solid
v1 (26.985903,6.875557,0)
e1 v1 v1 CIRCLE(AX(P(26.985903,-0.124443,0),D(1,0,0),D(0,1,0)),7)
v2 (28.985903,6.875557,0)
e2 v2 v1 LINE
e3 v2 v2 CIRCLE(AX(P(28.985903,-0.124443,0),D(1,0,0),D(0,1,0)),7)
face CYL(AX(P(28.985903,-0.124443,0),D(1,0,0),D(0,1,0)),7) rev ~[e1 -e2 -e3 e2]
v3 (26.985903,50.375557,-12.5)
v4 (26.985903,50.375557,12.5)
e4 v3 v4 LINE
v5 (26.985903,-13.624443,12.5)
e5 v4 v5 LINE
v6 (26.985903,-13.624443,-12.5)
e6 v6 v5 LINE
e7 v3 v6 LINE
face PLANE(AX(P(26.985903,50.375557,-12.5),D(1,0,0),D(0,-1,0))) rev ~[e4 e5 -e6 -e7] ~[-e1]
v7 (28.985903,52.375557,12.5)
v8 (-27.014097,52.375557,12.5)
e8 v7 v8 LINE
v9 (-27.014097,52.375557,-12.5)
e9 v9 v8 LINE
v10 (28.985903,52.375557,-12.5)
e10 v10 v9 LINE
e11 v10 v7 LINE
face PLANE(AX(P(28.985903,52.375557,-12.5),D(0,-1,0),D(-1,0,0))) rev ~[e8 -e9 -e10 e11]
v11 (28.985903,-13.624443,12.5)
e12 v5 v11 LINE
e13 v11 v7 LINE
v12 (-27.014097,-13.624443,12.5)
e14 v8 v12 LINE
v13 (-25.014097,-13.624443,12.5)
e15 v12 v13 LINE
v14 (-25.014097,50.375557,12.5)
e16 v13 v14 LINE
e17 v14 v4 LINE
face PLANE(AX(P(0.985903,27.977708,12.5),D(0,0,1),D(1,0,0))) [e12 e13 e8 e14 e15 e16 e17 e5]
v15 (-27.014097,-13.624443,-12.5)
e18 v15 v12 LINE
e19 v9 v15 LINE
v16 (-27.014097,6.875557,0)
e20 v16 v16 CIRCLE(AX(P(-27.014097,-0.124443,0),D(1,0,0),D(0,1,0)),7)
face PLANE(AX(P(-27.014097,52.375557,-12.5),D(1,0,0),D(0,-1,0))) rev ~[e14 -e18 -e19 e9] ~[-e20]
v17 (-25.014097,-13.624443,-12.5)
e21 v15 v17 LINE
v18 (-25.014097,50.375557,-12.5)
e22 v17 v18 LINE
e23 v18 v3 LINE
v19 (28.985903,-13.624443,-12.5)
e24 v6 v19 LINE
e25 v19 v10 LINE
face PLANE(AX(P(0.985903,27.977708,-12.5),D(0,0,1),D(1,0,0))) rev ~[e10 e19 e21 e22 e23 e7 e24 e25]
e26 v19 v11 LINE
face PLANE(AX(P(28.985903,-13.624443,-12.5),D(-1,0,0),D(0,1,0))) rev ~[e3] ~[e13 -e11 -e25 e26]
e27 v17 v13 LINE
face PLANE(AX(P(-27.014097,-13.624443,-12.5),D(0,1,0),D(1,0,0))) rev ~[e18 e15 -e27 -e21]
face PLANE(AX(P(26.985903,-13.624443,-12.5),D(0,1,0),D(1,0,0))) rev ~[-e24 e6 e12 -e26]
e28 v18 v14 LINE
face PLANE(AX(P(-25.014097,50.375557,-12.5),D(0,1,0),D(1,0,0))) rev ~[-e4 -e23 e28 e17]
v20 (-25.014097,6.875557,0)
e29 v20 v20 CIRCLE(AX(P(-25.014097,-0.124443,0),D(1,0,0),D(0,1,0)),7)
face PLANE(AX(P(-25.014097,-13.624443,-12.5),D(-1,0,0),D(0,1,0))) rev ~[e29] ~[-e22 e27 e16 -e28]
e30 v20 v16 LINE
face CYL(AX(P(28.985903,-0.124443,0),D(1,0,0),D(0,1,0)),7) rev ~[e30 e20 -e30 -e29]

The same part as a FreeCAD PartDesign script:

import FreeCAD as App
import Part
import Sketcher
Q = App.Units.Quantity


def add_polygon(sketch, points):
    """Adds a closed chain of lines whose ends are joined by coincident constraints."""
    first, n = sketch.GeometryCount, len(points)
    for a, b in zip(points, points[1:] + points[:1]):
        sketch.addGeometry(Part.LineSegment(App.Vector(*a, 0), App.Vector(*b, 0)), False)
    for i in range(n):
        sketch.addConstraint(Sketcher.Constraint("Coincident", first + i, 2, first + (i + 1) % n, 1))

doc = App.newDocument("Part")
body = doc.addObject("PartDesign::Body", "Body")

# Sketch on XY plane
sketch1 = doc.addObject("Sketcher::SketchObject", "Sketch")
body.addObject(sketch1)
sketch1.AttachmentSupport = (doc.XY_Plane, [""])
sketch1.MapMode = "FlatFace"
add_polygon(sketch1, [(-27.014097, -10.624443), (-25.014097, -10.624443), (-25.014097, 53.375557), (26.985903, 53.375557), (26.985903, -10.624443), (28.985903, -10.624443), (28.985903, 55.375557), (-27.014097, 55.375557)])  # lines 0-7
sketch1.addConstraint([
    Sketcher.Constraint("Horizontal", 0),
    Sketcher.Constraint("Vertical", 1),
    Sketcher.Constraint("Horizontal", 2),
    Sketcher.Constraint("Vertical", 3),
    Sketcher.Constraint("Horizontal", 4),
    Sketcher.Constraint("Vertical", 5),
    Sketcher.Constraint("Horizontal", 6),
    Sketcher.Constraint("Vertical", 7),
    Sketcher.Constraint("Horizontal", 0, 2, 3, 2),
    Sketcher.Constraint("Equal", 0, 4),
    Sketcher.Constraint("DistanceX", 0, 1, 0, 2, Q("2 mm")),
    Sketcher.Constraint("DistanceX", 2, 1, 2, 2, Q("52 mm")),
    Sketcher.Constraint("DistanceY", 1, 1, 1, 2, Q("64 mm")),
    Sketcher.Constraint("DistanceY", 5, 1, 5, 2, Q("66 mm")),
    Sketcher.Constraint("DistanceX", 0, 2, -1, 1, Q("25.014097 mm")),
    Sketcher.Constraint("DistanceY", 0, 2, -1, 1, Q("10.624443 mm")),
])
pad1 = doc.addObject("PartDesign::Pad", "Pad")
body.addObject(pad1)
pad1.Profile = sketch1
pad1.Length = 25

# Sketch on YZ plane
sketch2 = doc.addObject("Sketcher::SketchObject", "Sketch001")
body.addObject(sketch2)
sketch2.AttachmentSupport = (doc.YZ_Plane, [""])
sketch2.MapMode = "FlatFace"
sketch2.AttachmentOffset = App.Placement(App.Vector(0, 0, 28.985903), App.Rotation())
sketch2.addGeometry(Part.Circle(App.Vector(2.875557, 12.5, 0), App.Vector(0, 0, 1), 7), False)
sketch2.addConstraint([
    Sketcher.Constraint("Diameter", 0, Q("14 mm")),
    Sketcher.Constraint("DistanceY", -1, 1, 0, 3, Q("12.5 mm")),
    Sketcher.Constraint("DistanceX", -1, 1, 0, 3, Q("2.875557 mm")),
])
pocket1 = doc.addObject("PartDesign::Pocket", "Pocket")
body.addObject(pocket1)
pocket1.Profile = sketch2
pocket1.Type = "ThroughAll"
body2 = doc.addObject("PartDesign::Body", "Body001")
doc.recompute()

body.Placement = App.Placement(App.Vector(0, -3, -12.5), App.Rotation(App.Vector(0, 0, 1), 0))
boolean = doc.addObject("PartDesign::Boolean", "Boolean")
body2.addObject(boolean)
boolean.Type = "Fuse"
boolean.addObjects([body])

doc.recompute()
